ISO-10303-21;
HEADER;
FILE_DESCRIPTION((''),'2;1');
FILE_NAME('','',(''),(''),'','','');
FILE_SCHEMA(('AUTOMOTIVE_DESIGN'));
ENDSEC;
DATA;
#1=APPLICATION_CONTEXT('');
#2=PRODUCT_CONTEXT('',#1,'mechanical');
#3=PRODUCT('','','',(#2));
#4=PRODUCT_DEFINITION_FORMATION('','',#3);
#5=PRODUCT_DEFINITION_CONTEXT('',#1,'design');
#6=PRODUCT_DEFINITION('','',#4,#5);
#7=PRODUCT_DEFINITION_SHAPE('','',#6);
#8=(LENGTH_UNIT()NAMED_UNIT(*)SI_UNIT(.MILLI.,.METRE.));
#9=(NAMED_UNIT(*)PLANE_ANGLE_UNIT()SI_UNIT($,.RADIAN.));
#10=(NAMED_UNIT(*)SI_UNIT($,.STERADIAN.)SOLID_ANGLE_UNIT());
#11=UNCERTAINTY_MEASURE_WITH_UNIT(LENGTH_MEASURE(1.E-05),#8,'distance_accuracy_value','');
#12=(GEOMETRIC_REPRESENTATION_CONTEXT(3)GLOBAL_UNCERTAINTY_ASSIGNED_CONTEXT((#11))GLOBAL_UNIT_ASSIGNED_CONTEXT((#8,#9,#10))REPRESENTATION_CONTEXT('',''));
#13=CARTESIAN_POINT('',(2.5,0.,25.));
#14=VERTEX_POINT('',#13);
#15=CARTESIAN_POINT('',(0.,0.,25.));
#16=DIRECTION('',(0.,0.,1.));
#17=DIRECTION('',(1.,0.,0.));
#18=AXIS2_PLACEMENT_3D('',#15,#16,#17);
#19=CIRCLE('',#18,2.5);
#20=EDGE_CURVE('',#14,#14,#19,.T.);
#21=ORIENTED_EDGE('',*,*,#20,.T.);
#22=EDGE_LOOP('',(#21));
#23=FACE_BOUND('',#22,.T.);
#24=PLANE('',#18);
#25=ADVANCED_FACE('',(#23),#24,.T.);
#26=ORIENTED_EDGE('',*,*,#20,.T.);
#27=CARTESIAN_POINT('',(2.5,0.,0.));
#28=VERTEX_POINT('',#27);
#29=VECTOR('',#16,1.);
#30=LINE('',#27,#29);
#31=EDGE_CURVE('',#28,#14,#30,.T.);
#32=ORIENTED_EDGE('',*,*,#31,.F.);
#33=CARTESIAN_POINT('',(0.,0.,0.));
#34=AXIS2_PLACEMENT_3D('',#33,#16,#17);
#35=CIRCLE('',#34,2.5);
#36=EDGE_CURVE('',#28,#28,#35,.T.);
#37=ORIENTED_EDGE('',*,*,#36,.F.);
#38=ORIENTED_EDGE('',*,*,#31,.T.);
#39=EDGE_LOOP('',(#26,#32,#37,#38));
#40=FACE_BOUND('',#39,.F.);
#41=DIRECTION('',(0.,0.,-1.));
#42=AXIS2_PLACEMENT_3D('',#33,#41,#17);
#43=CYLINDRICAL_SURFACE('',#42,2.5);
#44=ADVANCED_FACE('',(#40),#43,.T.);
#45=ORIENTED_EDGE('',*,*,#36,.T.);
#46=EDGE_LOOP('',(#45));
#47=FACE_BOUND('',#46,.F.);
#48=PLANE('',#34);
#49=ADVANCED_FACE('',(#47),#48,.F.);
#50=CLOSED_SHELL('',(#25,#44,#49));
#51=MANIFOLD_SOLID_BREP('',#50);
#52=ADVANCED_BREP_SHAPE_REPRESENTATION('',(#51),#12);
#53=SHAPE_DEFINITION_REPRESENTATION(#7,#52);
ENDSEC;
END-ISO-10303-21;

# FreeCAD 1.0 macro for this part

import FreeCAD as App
import Part
import Sketcher
Q = App.Units.Quantity

doc = App.newDocument("Part")
body = doc.addObject("PartDesign::Body", "Body")

# Sketch on XY plane
sketch1 = body.newObject("Sketcher::SketchObject", "Sketch")
sketch1.AttachmentSupport = (doc.getObject("XY_Plane"), [""])
sketch1.MapMode = "FlatFace"
sketch1.addGeometry(Part.Circle(App.Vector(0, 0, 0), App.Vector(0, 0, 1), 2.5), False)
sketch1.addConstraint(Sketcher.Constraint("Coincident", 0, 3, -1, 1))
sketch1.addConstraint(Sketcher.Constraint("Diameter", 0, Q("5 mm")))
pad1 = body.newObject("PartDesign::Pad", "Pad")
pad1.Profile = sketch1
pad1.Length = 25

doc.recompute()
